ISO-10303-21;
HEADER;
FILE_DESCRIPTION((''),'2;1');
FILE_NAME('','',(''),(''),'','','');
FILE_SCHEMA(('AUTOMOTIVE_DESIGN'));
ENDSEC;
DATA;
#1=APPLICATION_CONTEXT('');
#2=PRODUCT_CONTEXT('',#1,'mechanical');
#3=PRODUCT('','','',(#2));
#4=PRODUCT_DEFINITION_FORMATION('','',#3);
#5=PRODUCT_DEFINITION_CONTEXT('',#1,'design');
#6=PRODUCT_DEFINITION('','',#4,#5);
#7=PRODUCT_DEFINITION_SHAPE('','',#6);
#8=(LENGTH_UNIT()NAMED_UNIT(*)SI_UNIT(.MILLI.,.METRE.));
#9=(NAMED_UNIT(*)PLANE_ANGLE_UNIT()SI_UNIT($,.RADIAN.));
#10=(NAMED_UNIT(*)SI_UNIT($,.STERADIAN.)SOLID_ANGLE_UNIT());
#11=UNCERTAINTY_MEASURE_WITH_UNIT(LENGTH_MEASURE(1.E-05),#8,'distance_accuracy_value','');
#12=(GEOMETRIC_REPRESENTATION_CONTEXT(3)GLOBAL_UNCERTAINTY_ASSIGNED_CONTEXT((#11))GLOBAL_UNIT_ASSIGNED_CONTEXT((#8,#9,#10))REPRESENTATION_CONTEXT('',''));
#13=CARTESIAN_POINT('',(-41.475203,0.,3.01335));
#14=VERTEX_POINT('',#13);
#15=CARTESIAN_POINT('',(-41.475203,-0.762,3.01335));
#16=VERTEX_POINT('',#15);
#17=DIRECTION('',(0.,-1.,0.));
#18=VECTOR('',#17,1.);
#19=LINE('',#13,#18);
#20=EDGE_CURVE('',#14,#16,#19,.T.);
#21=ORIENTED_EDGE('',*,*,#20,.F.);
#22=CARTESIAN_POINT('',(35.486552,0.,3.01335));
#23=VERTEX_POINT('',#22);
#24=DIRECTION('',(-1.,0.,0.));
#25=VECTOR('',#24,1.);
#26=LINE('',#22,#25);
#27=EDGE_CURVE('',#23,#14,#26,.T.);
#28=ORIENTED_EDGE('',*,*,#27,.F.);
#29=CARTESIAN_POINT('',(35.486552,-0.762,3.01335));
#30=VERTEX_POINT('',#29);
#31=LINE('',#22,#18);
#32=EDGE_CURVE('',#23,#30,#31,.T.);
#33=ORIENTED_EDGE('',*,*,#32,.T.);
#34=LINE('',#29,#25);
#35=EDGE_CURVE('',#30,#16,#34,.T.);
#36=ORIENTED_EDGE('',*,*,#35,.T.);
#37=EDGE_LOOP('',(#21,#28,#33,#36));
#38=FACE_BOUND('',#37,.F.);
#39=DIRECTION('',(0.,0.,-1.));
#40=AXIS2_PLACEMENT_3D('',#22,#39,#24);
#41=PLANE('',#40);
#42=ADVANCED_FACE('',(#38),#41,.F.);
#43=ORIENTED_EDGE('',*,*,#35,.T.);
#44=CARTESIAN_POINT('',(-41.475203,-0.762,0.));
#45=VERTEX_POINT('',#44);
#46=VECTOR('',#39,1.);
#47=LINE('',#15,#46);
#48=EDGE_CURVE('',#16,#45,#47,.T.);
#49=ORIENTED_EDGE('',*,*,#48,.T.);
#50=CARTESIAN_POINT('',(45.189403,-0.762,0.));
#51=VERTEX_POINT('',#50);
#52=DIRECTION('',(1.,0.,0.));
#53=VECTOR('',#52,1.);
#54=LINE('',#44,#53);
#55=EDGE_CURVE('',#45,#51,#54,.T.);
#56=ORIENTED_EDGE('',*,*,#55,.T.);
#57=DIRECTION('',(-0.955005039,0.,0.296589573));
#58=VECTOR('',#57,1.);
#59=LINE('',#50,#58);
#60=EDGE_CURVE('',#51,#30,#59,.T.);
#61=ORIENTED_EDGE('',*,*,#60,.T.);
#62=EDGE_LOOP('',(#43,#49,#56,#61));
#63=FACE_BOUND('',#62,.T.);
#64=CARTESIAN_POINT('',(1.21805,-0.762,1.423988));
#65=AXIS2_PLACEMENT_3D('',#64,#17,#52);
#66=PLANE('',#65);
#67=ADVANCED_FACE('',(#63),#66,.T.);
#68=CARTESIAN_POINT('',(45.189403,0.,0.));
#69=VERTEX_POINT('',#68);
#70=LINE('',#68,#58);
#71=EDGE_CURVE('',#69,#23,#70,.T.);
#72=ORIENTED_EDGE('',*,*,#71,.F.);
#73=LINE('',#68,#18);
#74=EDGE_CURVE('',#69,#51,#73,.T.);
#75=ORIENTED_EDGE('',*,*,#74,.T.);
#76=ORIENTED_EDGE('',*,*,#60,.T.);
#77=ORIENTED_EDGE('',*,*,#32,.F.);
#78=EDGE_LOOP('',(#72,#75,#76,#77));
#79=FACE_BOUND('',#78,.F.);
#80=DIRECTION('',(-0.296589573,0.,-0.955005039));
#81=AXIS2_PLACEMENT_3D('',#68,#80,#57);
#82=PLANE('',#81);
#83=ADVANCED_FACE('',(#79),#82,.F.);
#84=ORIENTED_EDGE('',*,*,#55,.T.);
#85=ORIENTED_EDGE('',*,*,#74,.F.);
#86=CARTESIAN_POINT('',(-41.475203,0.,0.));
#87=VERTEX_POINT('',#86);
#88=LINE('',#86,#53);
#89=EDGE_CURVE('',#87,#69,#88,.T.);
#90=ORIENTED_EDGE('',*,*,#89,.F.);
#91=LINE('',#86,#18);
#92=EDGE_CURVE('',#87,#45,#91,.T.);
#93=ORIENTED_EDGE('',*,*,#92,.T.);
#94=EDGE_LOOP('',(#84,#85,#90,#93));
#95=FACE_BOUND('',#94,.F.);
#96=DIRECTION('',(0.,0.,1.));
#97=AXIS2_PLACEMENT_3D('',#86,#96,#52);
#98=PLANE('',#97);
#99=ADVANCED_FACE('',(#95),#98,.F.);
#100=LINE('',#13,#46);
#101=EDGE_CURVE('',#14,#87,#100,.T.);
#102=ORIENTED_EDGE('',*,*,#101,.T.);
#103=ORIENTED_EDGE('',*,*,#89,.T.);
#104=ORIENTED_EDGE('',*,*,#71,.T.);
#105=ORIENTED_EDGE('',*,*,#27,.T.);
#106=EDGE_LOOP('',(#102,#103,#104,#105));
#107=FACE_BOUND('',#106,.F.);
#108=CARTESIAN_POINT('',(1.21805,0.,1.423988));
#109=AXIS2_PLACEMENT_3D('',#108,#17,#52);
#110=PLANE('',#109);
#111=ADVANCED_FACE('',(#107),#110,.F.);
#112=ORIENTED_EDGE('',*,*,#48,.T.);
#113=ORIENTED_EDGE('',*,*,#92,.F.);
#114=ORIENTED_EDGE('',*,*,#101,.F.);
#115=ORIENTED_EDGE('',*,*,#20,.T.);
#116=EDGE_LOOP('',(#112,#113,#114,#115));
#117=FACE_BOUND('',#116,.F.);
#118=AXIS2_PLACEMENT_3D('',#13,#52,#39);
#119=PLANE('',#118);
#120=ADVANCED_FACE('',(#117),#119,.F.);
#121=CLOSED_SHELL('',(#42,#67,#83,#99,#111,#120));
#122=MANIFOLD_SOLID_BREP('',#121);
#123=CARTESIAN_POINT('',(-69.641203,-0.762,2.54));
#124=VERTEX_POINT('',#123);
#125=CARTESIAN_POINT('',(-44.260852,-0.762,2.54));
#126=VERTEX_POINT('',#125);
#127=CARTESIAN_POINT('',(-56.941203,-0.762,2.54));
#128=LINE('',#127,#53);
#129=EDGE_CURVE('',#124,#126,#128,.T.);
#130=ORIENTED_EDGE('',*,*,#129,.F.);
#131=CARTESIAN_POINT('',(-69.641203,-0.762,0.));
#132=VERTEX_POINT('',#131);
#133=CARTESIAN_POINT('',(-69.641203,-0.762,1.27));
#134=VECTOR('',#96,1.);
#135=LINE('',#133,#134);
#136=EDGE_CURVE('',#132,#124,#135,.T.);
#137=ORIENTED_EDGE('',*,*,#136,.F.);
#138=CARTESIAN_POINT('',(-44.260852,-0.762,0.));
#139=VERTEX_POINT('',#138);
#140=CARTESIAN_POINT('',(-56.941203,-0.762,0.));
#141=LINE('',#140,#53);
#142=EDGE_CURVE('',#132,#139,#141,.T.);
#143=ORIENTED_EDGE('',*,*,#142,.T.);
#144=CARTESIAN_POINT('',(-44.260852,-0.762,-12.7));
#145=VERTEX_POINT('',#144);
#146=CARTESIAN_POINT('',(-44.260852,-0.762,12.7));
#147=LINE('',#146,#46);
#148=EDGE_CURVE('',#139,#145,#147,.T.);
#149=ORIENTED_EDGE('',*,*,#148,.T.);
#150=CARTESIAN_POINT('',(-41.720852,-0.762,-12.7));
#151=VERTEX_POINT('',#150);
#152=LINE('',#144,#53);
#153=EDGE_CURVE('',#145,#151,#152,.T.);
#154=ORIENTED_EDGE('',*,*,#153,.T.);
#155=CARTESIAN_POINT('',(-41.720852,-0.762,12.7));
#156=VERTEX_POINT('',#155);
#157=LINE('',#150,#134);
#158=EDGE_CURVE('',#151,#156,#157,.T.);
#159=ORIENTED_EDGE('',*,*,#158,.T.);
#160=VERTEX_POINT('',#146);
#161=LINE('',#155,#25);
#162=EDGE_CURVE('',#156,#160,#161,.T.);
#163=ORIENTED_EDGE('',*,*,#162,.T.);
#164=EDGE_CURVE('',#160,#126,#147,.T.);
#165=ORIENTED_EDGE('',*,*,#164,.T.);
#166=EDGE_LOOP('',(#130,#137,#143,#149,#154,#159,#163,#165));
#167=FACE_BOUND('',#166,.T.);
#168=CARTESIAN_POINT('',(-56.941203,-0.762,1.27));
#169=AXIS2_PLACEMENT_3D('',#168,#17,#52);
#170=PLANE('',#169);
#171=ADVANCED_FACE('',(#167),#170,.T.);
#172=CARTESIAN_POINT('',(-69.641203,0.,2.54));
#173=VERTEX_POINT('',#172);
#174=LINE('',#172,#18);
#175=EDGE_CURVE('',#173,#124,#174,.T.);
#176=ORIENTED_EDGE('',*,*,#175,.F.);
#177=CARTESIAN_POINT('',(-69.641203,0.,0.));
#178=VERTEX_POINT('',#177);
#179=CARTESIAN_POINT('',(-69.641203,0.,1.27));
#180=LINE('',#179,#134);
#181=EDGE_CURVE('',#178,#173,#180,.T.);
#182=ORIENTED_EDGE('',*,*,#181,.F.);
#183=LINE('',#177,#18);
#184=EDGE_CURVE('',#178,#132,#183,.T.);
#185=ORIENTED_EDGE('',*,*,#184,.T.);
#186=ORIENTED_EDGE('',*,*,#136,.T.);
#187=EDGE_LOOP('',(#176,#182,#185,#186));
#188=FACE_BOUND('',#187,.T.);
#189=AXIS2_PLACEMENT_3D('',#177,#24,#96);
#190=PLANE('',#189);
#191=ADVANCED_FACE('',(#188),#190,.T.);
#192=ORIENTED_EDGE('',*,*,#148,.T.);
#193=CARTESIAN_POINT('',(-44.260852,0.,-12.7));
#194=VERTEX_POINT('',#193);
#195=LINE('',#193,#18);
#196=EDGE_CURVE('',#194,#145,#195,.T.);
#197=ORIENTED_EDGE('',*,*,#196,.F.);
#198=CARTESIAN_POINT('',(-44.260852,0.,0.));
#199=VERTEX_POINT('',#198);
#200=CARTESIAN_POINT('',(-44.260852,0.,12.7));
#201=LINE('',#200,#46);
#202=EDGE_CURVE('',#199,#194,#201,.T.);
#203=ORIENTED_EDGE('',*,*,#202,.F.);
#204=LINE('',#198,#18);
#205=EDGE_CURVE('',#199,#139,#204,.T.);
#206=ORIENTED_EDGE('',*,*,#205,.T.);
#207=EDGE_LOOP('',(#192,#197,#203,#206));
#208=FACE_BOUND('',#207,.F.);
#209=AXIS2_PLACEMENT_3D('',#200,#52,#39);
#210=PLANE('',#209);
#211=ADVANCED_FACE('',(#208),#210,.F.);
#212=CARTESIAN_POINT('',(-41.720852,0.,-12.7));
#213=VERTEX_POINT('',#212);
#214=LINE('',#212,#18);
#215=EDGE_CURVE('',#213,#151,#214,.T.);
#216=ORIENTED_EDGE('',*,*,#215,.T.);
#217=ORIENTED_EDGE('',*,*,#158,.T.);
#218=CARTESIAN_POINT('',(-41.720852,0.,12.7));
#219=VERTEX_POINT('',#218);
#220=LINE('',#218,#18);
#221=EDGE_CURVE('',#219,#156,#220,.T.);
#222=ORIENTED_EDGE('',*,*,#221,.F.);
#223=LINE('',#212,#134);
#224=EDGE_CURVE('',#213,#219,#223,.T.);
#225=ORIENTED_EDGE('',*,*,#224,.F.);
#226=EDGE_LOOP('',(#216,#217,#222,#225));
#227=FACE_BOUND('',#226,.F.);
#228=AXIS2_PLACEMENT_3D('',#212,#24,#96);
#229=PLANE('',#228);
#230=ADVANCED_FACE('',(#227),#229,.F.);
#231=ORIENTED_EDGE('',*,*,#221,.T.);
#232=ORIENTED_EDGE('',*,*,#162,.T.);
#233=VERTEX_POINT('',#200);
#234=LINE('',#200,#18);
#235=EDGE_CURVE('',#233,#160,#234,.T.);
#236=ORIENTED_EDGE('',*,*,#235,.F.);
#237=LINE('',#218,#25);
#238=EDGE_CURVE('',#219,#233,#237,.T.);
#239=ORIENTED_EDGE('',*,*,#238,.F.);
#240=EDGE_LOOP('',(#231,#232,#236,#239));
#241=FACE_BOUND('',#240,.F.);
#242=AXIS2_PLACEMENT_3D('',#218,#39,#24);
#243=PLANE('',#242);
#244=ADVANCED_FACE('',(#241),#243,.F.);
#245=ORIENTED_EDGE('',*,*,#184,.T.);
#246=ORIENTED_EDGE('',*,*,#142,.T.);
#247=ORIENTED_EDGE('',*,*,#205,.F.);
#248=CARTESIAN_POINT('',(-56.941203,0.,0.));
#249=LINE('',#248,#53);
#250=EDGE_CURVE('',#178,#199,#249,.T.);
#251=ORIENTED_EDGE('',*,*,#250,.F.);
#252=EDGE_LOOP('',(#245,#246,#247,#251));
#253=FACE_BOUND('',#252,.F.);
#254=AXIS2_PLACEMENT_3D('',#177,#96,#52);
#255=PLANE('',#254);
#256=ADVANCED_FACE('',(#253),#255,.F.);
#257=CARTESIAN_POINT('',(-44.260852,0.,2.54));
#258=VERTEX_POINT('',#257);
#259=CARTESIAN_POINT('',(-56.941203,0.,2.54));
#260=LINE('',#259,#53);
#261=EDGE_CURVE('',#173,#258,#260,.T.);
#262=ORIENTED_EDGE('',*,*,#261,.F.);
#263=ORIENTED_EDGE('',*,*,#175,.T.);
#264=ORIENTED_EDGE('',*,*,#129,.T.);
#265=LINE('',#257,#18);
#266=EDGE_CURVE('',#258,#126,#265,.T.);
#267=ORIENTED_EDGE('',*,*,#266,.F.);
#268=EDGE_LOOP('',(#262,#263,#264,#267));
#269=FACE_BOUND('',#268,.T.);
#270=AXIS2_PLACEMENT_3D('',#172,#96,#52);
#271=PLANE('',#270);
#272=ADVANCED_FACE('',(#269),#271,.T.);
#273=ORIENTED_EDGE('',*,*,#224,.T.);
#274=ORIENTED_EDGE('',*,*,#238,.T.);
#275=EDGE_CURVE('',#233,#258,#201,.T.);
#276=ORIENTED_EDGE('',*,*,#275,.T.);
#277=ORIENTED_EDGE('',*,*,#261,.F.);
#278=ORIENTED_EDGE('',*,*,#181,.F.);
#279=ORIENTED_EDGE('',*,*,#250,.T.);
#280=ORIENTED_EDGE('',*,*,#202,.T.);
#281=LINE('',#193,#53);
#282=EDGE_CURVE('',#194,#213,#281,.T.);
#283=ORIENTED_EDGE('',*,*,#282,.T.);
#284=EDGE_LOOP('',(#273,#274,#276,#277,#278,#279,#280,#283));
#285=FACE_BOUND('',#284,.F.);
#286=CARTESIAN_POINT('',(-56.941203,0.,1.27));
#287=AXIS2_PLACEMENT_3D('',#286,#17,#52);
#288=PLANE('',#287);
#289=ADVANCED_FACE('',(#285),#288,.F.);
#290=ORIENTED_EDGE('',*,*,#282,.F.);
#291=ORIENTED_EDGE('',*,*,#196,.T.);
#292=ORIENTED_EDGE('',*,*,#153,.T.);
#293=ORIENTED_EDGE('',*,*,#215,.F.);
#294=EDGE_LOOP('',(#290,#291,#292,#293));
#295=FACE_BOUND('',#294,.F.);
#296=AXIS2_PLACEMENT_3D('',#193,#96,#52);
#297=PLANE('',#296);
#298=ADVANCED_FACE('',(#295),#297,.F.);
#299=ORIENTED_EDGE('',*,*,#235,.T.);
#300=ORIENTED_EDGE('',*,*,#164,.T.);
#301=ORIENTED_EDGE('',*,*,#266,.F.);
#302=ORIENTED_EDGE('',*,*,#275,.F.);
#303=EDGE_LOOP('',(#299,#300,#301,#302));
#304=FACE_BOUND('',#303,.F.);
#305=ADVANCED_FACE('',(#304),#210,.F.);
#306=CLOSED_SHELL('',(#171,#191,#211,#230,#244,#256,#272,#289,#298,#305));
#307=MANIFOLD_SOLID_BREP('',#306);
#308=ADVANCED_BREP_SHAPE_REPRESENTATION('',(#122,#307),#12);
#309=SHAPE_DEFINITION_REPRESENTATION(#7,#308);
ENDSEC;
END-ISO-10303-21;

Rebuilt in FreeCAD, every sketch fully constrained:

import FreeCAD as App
import Part
import Sketcher
from FreeCAD import Vector
Q = App.Units.Quantity

doc = App.newDocument("Part")
body = doc.addObject("PartDesign::Body", "Body")

# Sketch on XZ plane
sketch1 = body.newObject("Sketcher::SketchObject", "Sketch")
sketch1.AttachmentSupport = (doc.getObject("XZ_Plane"), [""])
sketch1.MapMode = "FlatFace"
sketch1.addGeometry([
    Part.LineSegment(Vector(-41.5, 3, 0), Vector(-41.5, 0, 0)),
    Part.LineSegment(Vector(-41.5, 0, 0), Vector(45.2, 0, 0)),
    Part.LineSegment(Vector(45.2, 0, 0), Vector(35.5, 3, 0)),
    Part.LineSegment(Vector(35.5, 3, 0), Vector(-41.5, 3, 0)),
], False)
sketch1.addConstraint([
    Sketcher.Constraint("Coincident", 0, 2, 1, 1),
    Sketcher.Constraint("Coincident", 1, 2, 2, 1),
    Sketcher.Constraint("Coincident", 2, 2, 3, 1),
    Sketcher.Constraint("Coincident", 3, 2, 0, 1),
    Sketcher.Constraint("Vertical", 0),
    Sketcher.Constraint("Horizontal", 1),
    Sketcher.Constraint("Horizontal", 3),
    Sketcher.Constraint("PointOnObject", 0, 2, -1),
    Sketcher.Constraint("Distance", 2, Q("0.4 in")),
    Sketcher.Constraint("DistanceY", 0, 2, 0, 1, 3.01335),
    Sketcher.Constraint("DistanceX", 1, 1, 1, 2, 86.664606),
    Sketcher.Constraint("DistanceX", 0, 2, -1, 1, 41.475203),
])
pad1 = body.newObject("PartDesign::Pad", "Pad")
pad1.Profile = sketch1
pad1.Length = Q("0.03 in")
body2 = doc.addObject("PartDesign::Body", "Body001")

# Sketch on XZ plane
sketch2 = body2.newObject("Sketcher::SketchObject", "Sketch001")
sketch2.AttachmentSupport = (doc.getObject("XZ_Plane001"), [""])
sketch2.MapMode = "FlatFace"
sketch2.addGeometry([
    Part.LineSegment(Vector(-44.3, 12.7, 0), Vector(-44.3, -12.7, 0)),
    Part.LineSegment(Vector(-44.3, -12.7, 0), Vector(-41.7, -12.7, 0)),
    Part.LineSegment(Vector(-41.7, -12.7, 0), Vector(-41.7, 12.7, 0)),
    Part.LineSegment(Vector(-41.7, 12.7, 0), Vector(-44.3, 12.7, 0)),
], False)
sketch2.addConstraint([
    Sketcher.Constraint("Coincident", 0, 2, 1, 1),
    Sketcher.Constraint("Coincident", 1, 2, 2, 1),
    Sketcher.Constraint("Coincident", 2, 2, 3, 1),
    Sketcher.Constraint("Coincident", 3, 2, 0, 1),
    Sketcher.Constraint("Vertical", 0),
    Sketcher.Constraint("Horizontal", 1),
    Sketcher.Constraint("Vertical", 2),
    Sketcher.Constraint("Horizontal", 3),
    Sketcher.Constraint("DistanceY", 0, 2, 0, 1, Q("1 in")),
    Sketcher.Constraint("DistanceX", 1, 1, 1, 2, Q("0.1 in")),
    Sketcher.Constraint("DistanceY", 0, 2, -1, 1, Q("0.5 in")),
    Sketcher.Constraint("DistanceX", 0, 2, -1, 1, 44.260852),
])
pad2 = body2.newObject("PartDesign::Pad", "Pad001")
pad2.Profile = sketch2
pad2.Length = Q("0.03 in")

# Sketch on XZ plane
sketch3 = body2.newObject("Sketcher::SketchObject", "Sketch002")
sketch3.AttachmentSupport = (doc.getObject("XZ_Plane001"), [""])
sketch3.MapMode = "FlatFace"
sketch3.addGeometry([
    Part.LineSegment(Vector(-69.6, 2.5, 0), Vector(-69.6, 0, 0)),
    Part.LineSegment(Vector(-69.6, 0, 0), Vector(-44.2, 0, 0)),
    Part.LineSegment(Vector(-44.2, 0, 0), Vector(-44.2, 2.5, 0)),
    Part.LineSegment(Vector(-44.2, 2.5, 0), Vector(-69.6, 2.5, 0)),
], False)
sketch3.addConstraint([
    Sketcher.Constraint("Coincident", 0, 2, 1, 1),
    Sketcher.Constraint("Coincident", 1, 2, 2, 1),
    Sketcher.Constraint("Coincident", 2, 2, 3, 1),
    Sketcher.Constraint("Coincident", 3, 2, 0, 1),
    Sketcher.Constraint("Vertical", 0),
    Sketcher.Constraint("Horizontal", 1),
    Sketcher.Constraint("Vertical", 2),
    Sketcher.Constraint("Horizontal", 3),
    Sketcher.Constraint("PointOnObject", 0, 2, -1),
    Sketcher.Constraint("DistanceX", 1, 1, 1, 2, Q("1 in")),
    Sketcher.Constraint("DistanceY", 0, 2, 0, 1, Q("0.1 in")),
    Sketcher.Constraint("DistanceX", 0, 2, -1, 1, 69.641203),
])
pad3 = body2.newObject("PartDesign::Pad", "Pad002")
pad3.Profile = sketch3
pad3.Length = Q("0.03 in")

doc.recompute()
